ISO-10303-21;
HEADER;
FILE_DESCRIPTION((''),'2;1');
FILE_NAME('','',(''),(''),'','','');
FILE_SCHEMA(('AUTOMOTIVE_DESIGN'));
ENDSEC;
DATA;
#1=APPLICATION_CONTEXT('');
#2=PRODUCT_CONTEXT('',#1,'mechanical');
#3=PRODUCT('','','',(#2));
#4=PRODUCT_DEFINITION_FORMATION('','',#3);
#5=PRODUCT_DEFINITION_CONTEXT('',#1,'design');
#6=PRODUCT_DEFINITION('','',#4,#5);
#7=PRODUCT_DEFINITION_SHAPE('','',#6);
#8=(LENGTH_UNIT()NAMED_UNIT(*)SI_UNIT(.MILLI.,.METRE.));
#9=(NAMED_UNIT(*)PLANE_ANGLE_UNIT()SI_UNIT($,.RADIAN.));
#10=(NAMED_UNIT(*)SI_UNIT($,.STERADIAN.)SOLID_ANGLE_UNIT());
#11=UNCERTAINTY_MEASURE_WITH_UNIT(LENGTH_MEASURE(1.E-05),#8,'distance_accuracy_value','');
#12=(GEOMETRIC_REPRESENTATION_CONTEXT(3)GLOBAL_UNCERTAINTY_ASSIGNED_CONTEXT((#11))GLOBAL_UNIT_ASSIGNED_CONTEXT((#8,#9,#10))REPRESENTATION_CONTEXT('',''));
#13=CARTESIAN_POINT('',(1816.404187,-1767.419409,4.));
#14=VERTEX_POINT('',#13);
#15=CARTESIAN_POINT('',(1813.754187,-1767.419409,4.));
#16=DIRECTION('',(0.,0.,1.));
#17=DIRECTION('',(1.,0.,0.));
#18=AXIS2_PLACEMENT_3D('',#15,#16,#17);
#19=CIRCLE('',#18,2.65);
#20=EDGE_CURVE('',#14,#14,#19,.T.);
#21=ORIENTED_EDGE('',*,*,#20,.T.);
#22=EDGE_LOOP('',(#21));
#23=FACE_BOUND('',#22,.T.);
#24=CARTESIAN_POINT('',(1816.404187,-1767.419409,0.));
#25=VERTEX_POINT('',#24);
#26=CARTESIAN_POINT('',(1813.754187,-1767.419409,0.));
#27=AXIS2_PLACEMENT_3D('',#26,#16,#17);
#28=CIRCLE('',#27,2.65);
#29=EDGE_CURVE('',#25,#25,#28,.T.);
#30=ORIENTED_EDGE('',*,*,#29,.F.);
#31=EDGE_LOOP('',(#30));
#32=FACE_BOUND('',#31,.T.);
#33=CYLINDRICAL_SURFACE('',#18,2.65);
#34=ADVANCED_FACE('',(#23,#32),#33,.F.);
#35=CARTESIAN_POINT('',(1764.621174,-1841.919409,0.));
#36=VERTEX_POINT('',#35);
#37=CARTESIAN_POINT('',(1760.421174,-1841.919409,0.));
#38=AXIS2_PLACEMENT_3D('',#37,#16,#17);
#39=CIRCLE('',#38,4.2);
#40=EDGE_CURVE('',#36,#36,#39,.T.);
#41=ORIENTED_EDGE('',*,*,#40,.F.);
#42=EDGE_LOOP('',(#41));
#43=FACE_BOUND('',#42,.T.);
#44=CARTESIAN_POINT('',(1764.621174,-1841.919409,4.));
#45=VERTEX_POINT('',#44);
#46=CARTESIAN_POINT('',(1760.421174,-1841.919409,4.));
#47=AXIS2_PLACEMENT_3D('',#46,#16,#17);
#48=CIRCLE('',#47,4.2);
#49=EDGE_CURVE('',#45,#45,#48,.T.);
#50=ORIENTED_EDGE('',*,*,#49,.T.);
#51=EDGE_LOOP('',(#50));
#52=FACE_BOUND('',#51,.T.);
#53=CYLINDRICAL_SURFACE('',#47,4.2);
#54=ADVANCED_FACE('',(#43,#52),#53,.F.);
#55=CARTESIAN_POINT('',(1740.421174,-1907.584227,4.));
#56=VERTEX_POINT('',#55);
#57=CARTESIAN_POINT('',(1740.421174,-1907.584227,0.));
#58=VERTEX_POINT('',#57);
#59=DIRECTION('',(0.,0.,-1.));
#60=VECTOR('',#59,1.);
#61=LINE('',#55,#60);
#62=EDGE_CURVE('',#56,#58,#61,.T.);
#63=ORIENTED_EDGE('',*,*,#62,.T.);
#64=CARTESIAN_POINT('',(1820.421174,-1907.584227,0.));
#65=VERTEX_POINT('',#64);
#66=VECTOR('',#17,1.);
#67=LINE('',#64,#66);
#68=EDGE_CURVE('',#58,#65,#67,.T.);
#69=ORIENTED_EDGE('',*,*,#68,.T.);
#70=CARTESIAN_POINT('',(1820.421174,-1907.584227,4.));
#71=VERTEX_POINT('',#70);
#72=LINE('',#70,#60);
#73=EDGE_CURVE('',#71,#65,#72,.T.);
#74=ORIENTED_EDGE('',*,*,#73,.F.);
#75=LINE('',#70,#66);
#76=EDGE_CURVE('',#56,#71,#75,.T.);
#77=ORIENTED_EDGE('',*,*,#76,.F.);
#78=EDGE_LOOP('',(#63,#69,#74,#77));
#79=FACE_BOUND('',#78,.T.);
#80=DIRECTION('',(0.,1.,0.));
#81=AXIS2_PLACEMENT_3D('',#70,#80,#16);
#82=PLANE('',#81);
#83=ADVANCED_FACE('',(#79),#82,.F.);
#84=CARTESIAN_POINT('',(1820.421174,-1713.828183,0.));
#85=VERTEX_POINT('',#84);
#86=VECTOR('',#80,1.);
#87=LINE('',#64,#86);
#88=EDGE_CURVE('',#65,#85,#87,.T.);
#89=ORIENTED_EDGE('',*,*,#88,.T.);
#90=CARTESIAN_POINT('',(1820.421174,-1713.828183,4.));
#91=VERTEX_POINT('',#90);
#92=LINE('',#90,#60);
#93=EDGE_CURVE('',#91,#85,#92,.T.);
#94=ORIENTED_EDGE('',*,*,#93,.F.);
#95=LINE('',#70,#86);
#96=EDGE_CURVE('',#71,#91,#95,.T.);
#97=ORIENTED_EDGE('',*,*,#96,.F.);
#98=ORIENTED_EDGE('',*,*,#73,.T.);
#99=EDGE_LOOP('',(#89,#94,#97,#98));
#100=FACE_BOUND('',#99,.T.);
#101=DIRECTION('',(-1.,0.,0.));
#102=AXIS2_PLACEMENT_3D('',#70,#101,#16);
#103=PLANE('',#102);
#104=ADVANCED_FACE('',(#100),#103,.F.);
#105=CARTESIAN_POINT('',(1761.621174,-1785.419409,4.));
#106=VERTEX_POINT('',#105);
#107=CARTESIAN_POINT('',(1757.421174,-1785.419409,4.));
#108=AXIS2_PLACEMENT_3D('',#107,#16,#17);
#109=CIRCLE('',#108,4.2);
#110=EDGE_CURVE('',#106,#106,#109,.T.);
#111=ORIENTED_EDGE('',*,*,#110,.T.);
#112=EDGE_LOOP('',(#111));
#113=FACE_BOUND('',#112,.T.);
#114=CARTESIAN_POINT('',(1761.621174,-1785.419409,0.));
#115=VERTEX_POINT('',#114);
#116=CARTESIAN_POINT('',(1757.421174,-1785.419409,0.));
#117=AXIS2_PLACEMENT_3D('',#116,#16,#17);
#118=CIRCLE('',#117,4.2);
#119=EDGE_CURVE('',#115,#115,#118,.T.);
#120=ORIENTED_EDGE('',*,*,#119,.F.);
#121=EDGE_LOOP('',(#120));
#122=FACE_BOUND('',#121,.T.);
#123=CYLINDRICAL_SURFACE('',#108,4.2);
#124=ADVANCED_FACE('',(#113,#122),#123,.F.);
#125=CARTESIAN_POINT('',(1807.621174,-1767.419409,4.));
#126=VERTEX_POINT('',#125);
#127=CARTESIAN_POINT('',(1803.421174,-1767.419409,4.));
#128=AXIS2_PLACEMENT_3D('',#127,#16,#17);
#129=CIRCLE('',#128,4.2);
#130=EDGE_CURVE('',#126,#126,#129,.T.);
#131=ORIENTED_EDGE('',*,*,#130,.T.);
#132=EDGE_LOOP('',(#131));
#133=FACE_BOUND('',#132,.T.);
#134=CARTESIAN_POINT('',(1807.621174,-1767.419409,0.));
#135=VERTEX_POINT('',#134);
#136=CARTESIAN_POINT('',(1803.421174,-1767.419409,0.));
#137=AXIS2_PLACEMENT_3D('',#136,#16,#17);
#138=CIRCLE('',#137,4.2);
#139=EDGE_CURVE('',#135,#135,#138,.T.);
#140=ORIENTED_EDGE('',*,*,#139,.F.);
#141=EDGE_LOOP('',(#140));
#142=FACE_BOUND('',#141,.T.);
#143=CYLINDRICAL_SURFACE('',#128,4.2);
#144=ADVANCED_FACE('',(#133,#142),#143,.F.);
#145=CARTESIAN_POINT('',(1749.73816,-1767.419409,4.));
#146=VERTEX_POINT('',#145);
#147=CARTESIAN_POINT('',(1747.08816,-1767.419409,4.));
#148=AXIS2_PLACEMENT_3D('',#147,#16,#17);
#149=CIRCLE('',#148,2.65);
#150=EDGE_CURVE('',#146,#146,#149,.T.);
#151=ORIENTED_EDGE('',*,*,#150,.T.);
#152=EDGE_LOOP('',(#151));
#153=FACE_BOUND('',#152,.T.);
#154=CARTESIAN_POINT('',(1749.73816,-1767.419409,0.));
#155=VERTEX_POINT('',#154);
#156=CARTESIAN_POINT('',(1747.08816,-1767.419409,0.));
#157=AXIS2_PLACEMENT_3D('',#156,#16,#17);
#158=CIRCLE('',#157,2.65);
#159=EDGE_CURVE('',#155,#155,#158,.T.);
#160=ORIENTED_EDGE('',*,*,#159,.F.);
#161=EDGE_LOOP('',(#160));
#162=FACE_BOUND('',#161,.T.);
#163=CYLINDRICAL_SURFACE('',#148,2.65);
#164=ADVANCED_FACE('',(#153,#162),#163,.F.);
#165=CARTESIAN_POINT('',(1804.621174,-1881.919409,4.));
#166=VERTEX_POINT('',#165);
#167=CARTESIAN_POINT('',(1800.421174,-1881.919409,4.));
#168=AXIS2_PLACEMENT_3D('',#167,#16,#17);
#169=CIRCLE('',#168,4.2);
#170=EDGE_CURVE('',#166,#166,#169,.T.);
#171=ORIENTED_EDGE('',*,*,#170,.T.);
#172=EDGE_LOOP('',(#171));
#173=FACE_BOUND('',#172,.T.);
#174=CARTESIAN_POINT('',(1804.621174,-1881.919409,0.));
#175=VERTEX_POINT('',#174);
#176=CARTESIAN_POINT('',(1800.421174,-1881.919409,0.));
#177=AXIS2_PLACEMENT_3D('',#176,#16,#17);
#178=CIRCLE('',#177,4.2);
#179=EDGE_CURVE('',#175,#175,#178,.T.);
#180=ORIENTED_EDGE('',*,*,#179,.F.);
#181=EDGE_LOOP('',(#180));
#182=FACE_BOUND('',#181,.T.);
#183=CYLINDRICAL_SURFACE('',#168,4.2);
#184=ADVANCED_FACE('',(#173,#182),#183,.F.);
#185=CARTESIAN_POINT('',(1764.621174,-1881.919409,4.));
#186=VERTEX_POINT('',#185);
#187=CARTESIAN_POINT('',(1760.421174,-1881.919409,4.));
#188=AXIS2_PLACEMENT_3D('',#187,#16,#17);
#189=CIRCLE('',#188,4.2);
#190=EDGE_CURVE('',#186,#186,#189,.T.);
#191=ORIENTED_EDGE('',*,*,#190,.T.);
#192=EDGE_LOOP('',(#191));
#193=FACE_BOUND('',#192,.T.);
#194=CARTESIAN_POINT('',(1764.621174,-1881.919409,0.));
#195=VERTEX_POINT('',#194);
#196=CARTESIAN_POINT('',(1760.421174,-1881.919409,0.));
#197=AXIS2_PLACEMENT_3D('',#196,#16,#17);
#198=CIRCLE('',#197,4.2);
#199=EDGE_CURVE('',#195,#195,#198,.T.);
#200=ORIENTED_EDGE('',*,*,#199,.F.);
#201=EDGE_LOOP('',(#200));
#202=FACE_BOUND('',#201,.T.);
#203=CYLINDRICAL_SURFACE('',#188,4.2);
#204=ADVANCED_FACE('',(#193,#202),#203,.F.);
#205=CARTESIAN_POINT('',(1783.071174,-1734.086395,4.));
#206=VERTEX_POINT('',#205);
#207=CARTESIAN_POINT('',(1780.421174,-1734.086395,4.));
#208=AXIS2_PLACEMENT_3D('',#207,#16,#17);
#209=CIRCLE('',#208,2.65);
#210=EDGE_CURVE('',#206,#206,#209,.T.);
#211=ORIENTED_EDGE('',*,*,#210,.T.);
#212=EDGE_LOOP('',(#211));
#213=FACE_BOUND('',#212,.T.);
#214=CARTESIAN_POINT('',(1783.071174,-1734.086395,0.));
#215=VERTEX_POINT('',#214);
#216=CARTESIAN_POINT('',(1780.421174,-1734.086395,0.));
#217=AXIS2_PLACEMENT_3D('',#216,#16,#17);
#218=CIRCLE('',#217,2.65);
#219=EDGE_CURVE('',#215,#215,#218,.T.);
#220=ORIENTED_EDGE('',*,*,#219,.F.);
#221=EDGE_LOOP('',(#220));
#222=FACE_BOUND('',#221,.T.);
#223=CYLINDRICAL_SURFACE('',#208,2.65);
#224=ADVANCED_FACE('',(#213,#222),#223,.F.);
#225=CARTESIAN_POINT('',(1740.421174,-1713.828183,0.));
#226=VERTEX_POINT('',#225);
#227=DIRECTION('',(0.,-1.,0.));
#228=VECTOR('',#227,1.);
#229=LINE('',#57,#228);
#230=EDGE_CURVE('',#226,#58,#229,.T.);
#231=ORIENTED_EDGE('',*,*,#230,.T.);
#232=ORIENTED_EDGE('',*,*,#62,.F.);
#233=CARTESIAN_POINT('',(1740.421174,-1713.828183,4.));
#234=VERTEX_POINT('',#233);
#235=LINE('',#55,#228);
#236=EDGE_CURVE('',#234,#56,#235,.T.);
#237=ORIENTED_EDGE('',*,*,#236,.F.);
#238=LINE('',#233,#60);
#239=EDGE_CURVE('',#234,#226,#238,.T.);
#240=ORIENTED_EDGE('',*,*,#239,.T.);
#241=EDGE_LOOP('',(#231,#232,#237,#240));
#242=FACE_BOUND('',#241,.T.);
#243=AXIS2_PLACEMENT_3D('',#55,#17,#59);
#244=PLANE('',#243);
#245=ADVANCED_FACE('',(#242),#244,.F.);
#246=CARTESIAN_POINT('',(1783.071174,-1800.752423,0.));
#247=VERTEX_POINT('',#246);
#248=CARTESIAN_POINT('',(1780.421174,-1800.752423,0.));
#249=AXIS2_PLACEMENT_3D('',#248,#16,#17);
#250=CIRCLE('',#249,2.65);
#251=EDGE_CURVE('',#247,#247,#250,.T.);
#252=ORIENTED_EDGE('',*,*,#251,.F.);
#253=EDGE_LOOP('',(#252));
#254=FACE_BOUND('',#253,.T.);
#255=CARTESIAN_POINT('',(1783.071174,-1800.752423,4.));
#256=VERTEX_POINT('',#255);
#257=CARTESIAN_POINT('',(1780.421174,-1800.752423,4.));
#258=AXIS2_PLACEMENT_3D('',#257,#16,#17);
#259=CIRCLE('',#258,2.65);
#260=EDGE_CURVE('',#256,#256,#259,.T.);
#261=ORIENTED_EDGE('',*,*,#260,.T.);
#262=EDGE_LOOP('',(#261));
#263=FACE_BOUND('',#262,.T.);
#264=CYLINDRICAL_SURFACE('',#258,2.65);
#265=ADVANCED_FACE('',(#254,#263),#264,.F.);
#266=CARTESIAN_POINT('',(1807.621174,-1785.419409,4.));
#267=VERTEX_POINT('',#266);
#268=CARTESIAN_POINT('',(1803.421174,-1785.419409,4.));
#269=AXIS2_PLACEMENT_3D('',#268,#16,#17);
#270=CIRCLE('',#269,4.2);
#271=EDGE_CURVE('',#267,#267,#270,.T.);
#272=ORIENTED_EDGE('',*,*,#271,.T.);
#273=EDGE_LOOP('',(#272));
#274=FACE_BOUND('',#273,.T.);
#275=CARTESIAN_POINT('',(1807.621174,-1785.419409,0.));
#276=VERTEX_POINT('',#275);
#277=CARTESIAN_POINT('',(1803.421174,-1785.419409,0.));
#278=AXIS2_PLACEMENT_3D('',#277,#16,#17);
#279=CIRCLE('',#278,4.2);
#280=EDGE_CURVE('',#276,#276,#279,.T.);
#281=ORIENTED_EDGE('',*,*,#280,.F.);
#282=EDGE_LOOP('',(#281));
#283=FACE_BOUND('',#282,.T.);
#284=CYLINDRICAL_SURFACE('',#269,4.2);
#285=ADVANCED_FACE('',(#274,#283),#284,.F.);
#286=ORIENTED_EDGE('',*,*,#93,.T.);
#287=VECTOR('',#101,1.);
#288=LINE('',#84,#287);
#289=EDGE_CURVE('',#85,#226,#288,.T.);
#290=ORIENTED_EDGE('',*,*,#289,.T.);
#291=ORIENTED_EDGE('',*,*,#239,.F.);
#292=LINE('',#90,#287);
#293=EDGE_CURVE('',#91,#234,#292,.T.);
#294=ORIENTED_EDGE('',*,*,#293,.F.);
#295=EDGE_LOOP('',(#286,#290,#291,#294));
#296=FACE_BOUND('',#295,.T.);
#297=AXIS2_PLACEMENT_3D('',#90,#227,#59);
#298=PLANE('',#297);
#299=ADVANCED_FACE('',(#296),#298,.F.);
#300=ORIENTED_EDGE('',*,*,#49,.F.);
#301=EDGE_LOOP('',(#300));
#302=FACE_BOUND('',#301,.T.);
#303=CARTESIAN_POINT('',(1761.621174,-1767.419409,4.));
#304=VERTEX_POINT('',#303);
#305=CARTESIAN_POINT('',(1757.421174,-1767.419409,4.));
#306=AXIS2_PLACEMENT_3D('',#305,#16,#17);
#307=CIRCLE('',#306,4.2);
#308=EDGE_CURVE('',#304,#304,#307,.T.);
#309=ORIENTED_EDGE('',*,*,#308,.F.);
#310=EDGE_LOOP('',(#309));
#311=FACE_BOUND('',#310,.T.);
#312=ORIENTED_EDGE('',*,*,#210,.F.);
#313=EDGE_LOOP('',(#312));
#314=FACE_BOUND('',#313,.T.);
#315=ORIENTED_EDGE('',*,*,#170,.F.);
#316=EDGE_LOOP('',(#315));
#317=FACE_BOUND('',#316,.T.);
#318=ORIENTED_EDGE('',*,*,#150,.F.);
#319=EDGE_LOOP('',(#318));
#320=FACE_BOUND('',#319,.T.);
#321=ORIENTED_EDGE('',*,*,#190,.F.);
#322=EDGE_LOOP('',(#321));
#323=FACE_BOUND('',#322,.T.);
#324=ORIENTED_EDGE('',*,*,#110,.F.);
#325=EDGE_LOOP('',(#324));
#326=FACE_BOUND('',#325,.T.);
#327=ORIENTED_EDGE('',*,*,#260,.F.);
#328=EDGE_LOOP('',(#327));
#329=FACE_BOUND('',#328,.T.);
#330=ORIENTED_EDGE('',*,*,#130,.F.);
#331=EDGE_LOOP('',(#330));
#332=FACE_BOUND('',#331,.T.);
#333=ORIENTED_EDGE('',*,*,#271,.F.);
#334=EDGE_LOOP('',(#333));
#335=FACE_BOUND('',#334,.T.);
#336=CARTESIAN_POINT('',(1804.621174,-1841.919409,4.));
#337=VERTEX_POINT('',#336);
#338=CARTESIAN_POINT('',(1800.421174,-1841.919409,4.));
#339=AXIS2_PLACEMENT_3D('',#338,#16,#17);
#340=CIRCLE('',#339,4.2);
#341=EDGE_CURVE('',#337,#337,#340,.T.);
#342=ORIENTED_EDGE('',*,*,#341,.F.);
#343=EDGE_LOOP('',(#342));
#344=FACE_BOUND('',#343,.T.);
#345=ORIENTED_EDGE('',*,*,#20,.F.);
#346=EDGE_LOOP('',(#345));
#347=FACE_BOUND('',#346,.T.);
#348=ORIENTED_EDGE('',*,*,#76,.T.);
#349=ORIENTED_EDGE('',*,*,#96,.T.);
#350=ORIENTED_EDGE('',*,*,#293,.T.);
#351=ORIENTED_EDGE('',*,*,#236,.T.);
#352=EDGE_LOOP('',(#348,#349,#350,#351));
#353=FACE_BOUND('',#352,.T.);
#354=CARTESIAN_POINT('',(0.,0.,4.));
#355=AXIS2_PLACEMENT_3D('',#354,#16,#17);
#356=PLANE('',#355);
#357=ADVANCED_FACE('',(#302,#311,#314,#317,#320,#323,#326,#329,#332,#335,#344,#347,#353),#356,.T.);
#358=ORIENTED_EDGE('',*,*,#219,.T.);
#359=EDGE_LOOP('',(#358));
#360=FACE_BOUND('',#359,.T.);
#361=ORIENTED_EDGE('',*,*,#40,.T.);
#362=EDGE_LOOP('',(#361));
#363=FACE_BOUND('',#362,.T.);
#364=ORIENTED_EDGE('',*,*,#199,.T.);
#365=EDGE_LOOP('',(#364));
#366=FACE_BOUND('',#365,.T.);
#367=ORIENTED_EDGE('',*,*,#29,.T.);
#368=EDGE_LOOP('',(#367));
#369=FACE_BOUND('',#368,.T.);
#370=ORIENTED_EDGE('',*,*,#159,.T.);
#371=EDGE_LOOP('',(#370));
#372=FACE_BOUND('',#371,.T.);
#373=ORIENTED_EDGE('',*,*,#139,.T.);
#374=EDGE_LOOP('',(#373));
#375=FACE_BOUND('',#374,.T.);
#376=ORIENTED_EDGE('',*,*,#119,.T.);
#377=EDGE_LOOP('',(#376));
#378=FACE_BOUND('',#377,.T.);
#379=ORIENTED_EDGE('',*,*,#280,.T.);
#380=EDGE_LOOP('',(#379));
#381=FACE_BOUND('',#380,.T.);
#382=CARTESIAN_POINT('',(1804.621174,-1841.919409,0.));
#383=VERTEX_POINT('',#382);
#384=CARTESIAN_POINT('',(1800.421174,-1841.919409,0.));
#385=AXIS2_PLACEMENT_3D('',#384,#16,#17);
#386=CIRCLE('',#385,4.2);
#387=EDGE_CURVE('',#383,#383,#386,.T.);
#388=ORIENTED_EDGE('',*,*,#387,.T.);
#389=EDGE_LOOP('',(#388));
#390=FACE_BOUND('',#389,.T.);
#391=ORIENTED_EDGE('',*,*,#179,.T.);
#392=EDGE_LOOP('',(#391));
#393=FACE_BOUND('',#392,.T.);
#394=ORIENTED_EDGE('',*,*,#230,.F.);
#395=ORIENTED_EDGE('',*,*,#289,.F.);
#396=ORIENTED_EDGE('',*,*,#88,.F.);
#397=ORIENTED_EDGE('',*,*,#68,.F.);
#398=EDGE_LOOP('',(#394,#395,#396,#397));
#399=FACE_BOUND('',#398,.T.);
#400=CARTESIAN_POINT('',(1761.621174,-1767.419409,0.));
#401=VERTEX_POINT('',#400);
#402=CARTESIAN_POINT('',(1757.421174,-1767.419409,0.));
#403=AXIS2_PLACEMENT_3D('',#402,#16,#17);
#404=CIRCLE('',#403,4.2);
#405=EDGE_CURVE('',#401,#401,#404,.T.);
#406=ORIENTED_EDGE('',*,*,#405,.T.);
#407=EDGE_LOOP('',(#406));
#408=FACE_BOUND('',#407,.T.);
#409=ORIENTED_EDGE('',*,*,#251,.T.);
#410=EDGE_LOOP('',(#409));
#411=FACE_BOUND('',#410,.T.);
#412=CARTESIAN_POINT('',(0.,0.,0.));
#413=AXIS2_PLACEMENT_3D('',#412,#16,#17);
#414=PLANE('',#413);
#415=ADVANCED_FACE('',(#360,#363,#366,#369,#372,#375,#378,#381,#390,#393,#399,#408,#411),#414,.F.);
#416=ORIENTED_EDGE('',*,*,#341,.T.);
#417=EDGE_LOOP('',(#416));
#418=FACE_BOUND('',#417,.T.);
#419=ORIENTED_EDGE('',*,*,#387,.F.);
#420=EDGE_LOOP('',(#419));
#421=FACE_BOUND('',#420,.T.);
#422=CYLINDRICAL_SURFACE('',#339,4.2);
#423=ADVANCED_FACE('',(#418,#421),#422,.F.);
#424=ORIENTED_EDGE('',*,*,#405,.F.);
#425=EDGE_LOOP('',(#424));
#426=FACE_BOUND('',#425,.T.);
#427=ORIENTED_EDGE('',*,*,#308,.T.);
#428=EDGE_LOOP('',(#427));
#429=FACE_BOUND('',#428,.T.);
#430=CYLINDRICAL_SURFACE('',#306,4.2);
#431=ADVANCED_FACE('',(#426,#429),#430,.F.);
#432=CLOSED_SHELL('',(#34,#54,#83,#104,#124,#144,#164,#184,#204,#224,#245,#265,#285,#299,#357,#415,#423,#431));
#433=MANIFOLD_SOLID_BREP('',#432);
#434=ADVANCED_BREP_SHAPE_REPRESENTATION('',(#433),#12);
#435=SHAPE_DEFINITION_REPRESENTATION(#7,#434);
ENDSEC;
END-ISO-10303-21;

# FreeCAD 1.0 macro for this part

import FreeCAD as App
import Part
import Sketcher


def add_polygon(sketch, points):
    """Adds a closed chain of lines whose ends are joined by coincident constraints."""
    first, n = sketch.GeometryCount, len(points)
    for a, b in zip(points, points[1:] + points[:1]):
        sketch.addGeometry(Part.LineSegment(App.Vector(*a, 0), App.Vector(*b, 0)), False)
    for i in range(n):
        sketch.addConstraint(Sketcher.Constraint("Coincident", first + i, 2, first + (i + 1) % n, 1))

doc = App.newDocument("Part")
body = doc.addObject("PartDesign::Body", "Body")

sketch1 = doc.addObject("Sketcher::SketchObject", "Sketch")
body.addObject(sketch1)
sketch1.AttachmentSupport = (doc.XY_Plane, [""])
sketch1.MapMode = "FlatFace"
add_polygon(sketch1, [(1740, -1714), (1740, -1908), (1820, -1908), (1820, -1714)])
sketch1.addConstraint([
    Sketcher.Constraint("Vertical", 0),
    Sketcher.Constraint("Horizontal", 1),
    Sketcher.Constraint("Vertical", 2),
    Sketcher.Constraint("Horizontal", 3),
    Sketcher.Constraint("DistanceX", 1, 1, 1, 2, 80.0),
    Sketcher.Constraint("DistanceY", 0, 2, 0, 1, 193.756045),
    Sketcher.Constraint("DistanceX", -1, 1, 0, 2, 1740.421174),
    Sketcher.Constraint("DistanceY", 0, 2, -1, 1, 1907.584227),
])
pad1 = doc.addObject("PartDesign::Pad", "Pad")
body.addObject(pad1)
pad1.Profile = sketch1
pad1.Length = 4

sketch2 = doc.addObject("Sketcher::SketchObject", "Sketch001")
body.addObject(sketch2)
sketch2.AttachmentSupport = (doc.XY_Plane, [""])
sketch2.MapMode = "FlatFace"
sketch2.AttachmentOffset = App.Placement(App.Vector(0, 0, 4), App.Rotation())
sketch2.addGeometry([
    Part.Circle(App.Vector(1757.4, -1767.4, 0), App.Vector(0, 0, 1), 4.2),
    Part.Circle(App.Vector(1803.4, -1767.4, 0), App.Vector(0, 0, 1), 4.2),
    Part.Circle(App.Vector(1803.4, -1785.4, 0), App.Vector(0, 0, 1), 4.2),
    Part.Circle(App.Vector(1757.4, -1785.4, 0), App.Vector(0, 0, 1), 4.2),
    Part.Circle(App.Vector(1800.4, -1841.9, 0), App.Vector(0, 0, 1), 4.2),
    Part.Circle(App.Vector(1760.4, -1841.9, 0), App.Vector(0, 0, 1), 4.2),
    Part.Circle(App.Vector(1800.4, -1881.9, 0), App.Vector(0, 0, 1), 4.2),
    Part.Circle(App.Vector(1760.4, -1881.9, 0), App.Vector(0, 0, 1), 4.2),
], False)
sketch2.addConstraint([
    Sketcher.Constraint("Equal", 0, 1),
    Sketcher.Constraint("Equal", 1, 2),
    Sketcher.Constraint("Equal", 2, 3),
    Sketcher.Constraint("Equal", 3, 4),
    Sketcher.Constraint("Equal", 4, 5),
    Sketcher.Constraint("Equal", 5, 6),
    Sketcher.Constraint("Equal", 6, 7),
    Sketcher.Constraint("Horizontal", 0, 3, 1, 3),
    Sketcher.Constraint("Horizontal", 2, 3, 3, 3),
    Sketcher.Constraint("Horizontal", 4, 3, 5, 3),
    Sketcher.Constraint("Horizontal", 6, 3, 7, 3),
    Sketcher.Constraint("Vertical", 1, 3, 2, 3),
    Sketcher.Constraint("Vertical", 0, 3, 3, 3),
    Sketcher.Constraint("Vertical", 4, 3, 6, 3),
    Sketcher.Constraint("Vertical", 5, 3, 7, 3),
    Sketcher.Constraint("Diameter", 0, 8.4),
    Sketcher.Constraint("DistanceX", 0, 3, 1, 3, 46.0),
    Sketcher.Constraint("DistanceY", 2, 3, 1, 3, 18.0),
    Sketcher.Constraint("DistanceX", 4, 3, 2, 3, 3.0),
    Sketcher.Constraint("DistanceX", 5, 3, 4, 3, 40.0),
    Sketcher.Constraint("DistanceY", 6, 3, 4, 3, 40.0),
    Sketcher.Constraint("DistanceY", 4, 3, 2, 3, 56.5),
    Sketcher.Constraint("DistanceY", 0, 3, -1, 1, 1767.419409),
    Sketcher.Constraint("DistanceX", -1, 1, 0, 3, 1757.421174),
])
doc.recompute()
hole = doc.addObject("PartDesign::Hole", "Hole")
body.addObject(hole)
hole.Profile = sketch2
hole.ThreadType = "None"
hole.Diameter = 8.4
hole.DepthType = "ThroughAll"

sketch3 = doc.addObject("Sketcher::SketchObject", "Sketch002")
body.addObject(sketch3)
sketch3.AttachmentSupport = (doc.XY_Plane, [""])
sketch3.MapMode = "FlatFace"
sketch3.AttachmentOffset = App.Placement(App.Vector(0, 0, 4), App.Rotation())
sketch3.addGeometry([
    Part.Circle(App.Vector(1813.8, -1767.4, 0), App.Vector(0, 0, 1), 2.6),
    Part.Circle(App.Vector(1747.1, -1767.4, 0), App.Vector(0, 0, 1), 2.6),
    Part.Circle(App.Vector(1780.4, -1734.1, 0), App.Vector(0, 0, 1), 2.6),
    Part.Circle(App.Vector(1780.4, -1800.8, 0), App.Vector(0, 0, 1), 2.6),
], False)
sketch3.addConstraint([
    Sketcher.Constraint("Equal", 0, 1),
    Sketcher.Constraint("Equal", 1, 2),
    Sketcher.Constraint("Equal", 2, 3),
    Sketcher.Constraint("Horizontal", 0, 3, 1, 3),
    Sketcher.Constraint("Vertical", 2, 3, 3, 3),
    Sketcher.Constraint("Diameter", 0, 5.3),
    Sketcher.Constraint("DistanceY", 0, 3, -1, 1, 1767.419409),
    Sketcher.Constraint("DistanceX", -1, 1, 1, 3, 1747.08816),
    Sketcher.Constraint("DistanceX", -1, 1, 0, 3, 1813.754187),
    Sketcher.Constraint("DistanceX", -1, 1, 2, 3, 1780.421174),
    Sketcher.Constraint("DistanceY", 2, 3, -1, 1, 1734.086395),
    Sketcher.Constraint("DistanceY", 3, 3, -1, 1, 1800.752423),
])
doc.recompute()
hole2 = doc.addObject("PartDesign::Hole", "Hole001")
body.addObject(hole2)
hole2.Profile = sketch3
hole2.ThreadType = "None"
hole2.Diameter = 5.3
hole2.DepthType = "ThroughAll"

doc.recompute()
